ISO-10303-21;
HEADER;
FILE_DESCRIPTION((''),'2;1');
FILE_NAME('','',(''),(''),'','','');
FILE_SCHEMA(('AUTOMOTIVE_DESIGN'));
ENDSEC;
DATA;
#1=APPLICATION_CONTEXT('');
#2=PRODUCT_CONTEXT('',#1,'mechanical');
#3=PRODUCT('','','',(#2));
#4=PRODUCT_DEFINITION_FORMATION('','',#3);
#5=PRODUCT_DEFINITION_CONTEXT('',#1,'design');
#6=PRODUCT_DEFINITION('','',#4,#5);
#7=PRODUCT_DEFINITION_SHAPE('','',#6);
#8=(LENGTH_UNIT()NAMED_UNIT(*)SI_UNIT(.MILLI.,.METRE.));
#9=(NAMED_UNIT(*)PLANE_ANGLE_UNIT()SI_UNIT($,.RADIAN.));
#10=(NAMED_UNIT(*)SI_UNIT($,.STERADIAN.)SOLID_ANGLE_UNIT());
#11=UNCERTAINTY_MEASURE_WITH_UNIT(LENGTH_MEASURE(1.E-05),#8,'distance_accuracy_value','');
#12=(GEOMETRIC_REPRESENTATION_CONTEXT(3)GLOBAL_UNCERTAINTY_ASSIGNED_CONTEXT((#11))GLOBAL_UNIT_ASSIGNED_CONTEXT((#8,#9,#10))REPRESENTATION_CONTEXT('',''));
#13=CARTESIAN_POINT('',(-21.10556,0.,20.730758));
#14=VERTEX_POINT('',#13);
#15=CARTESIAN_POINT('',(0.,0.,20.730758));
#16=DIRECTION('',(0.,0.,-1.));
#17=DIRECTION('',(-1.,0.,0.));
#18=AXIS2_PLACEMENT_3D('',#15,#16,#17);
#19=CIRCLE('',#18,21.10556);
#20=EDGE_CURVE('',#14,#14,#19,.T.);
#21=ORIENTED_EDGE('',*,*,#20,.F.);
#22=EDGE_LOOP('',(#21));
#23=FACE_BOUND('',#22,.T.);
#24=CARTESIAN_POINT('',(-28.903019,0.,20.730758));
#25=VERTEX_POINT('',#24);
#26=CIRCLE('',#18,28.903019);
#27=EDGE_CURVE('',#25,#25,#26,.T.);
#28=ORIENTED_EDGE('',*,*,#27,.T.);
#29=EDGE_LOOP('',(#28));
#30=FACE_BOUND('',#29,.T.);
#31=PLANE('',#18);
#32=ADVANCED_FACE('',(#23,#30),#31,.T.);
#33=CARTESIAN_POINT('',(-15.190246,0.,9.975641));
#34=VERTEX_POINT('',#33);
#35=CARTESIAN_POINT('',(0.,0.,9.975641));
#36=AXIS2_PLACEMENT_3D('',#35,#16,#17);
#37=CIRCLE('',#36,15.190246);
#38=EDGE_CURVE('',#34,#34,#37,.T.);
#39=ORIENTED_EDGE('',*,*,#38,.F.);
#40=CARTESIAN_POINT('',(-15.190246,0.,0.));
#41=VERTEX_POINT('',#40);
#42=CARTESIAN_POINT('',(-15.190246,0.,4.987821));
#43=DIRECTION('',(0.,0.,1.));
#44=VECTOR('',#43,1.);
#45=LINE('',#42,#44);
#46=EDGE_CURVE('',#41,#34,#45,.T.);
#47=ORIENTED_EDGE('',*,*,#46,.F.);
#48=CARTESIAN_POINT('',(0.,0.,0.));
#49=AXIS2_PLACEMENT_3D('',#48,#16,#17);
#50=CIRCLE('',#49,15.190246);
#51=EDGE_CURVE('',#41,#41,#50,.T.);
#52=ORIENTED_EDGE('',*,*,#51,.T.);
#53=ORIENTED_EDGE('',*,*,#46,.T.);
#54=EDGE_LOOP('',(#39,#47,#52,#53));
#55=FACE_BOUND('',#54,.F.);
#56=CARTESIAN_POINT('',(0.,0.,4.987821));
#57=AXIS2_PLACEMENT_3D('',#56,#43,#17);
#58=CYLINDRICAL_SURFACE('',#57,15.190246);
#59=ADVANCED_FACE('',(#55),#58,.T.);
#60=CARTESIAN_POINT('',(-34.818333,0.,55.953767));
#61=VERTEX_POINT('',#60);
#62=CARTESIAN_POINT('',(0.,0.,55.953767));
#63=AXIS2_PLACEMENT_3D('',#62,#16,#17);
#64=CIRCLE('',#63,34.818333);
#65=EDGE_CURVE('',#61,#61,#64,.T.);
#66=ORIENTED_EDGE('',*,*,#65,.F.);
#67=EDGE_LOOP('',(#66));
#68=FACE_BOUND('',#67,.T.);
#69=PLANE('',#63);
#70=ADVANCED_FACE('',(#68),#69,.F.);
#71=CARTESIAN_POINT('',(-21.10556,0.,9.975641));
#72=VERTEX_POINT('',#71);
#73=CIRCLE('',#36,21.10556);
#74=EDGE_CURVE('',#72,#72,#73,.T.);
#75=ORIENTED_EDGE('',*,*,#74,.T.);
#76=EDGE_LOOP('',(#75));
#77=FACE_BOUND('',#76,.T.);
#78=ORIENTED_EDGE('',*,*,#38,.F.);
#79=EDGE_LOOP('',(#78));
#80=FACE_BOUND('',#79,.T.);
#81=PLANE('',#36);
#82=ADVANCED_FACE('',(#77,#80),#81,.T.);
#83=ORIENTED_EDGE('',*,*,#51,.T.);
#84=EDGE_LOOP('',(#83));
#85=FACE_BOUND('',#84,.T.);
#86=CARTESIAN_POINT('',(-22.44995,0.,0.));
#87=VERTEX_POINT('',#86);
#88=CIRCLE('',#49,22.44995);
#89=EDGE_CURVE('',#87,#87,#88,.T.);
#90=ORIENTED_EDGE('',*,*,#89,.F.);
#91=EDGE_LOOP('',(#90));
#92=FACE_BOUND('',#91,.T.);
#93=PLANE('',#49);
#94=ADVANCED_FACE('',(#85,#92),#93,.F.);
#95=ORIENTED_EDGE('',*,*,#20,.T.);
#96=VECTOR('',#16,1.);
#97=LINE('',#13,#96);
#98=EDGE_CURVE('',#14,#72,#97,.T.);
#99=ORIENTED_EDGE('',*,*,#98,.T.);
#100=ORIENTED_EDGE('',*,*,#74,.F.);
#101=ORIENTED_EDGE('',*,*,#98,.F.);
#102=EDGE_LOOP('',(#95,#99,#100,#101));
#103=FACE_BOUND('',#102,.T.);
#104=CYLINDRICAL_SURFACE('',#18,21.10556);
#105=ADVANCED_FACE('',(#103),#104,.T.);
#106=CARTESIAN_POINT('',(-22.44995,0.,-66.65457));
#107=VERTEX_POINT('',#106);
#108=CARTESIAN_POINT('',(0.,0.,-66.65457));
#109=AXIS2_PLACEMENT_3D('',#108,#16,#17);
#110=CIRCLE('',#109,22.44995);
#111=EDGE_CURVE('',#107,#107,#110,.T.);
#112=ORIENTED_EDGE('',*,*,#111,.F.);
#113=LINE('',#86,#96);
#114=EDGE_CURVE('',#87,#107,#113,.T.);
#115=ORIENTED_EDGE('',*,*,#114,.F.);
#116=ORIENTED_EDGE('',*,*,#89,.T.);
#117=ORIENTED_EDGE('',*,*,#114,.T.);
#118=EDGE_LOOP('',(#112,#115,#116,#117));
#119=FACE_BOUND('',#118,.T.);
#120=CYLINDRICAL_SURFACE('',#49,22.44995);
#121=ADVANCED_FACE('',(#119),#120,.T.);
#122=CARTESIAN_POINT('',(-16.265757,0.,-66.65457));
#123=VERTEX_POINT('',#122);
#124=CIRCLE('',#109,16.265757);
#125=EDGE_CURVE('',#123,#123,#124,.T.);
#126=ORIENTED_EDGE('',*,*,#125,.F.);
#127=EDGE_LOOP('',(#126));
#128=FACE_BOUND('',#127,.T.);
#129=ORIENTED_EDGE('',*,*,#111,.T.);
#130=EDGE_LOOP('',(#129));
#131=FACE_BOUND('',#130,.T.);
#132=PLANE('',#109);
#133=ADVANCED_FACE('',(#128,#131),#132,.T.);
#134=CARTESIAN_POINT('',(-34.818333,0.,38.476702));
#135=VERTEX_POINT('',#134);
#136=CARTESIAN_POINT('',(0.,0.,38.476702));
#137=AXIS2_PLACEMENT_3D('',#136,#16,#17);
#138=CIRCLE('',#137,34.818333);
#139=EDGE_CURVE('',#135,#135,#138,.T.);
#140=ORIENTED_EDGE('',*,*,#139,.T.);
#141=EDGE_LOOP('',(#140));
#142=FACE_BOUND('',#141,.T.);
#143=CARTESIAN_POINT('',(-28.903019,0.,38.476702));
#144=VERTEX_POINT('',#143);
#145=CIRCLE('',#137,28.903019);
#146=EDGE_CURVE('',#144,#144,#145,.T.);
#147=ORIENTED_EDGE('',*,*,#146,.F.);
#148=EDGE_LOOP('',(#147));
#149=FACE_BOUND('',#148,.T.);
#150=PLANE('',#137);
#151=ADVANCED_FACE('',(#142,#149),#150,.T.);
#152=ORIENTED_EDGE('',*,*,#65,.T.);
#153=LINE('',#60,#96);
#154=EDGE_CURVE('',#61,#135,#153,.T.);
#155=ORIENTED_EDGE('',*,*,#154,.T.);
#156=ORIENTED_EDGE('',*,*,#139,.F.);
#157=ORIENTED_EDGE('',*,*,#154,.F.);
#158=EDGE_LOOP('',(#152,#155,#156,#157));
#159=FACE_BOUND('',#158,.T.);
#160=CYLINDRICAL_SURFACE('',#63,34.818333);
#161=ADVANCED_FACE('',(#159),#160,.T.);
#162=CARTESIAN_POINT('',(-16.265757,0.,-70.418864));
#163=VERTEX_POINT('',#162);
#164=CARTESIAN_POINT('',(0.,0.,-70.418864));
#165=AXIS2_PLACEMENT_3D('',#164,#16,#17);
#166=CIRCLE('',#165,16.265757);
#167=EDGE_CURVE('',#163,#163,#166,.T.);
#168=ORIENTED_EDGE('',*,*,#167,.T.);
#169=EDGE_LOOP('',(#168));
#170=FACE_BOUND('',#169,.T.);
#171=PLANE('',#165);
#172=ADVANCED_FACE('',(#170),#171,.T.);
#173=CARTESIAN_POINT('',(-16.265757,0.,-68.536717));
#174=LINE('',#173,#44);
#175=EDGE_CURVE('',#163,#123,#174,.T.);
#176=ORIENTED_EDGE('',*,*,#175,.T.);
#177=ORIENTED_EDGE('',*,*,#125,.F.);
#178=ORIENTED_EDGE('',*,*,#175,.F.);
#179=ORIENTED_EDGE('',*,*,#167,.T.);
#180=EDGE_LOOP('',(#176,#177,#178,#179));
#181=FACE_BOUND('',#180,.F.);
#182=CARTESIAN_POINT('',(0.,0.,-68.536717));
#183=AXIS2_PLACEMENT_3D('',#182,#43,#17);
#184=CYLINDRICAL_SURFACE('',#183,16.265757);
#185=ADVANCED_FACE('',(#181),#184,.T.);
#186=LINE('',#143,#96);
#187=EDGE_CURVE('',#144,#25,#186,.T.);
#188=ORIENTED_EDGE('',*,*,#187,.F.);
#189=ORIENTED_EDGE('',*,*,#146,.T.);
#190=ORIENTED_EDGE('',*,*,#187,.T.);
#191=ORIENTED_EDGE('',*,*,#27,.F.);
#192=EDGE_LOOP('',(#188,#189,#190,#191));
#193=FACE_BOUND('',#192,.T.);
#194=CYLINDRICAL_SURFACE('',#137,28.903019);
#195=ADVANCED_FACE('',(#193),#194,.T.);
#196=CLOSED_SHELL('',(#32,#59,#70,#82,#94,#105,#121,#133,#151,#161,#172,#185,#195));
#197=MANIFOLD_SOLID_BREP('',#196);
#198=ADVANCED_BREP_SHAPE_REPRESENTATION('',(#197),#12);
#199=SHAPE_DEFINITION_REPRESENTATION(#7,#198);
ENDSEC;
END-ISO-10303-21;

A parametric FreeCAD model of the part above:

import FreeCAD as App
import Part
import Sketcher

V = App.Vector
Q = App.Units.Quantity


def add_polygon(sketch, points):
    """Adds a closed chain of lines whose ends are joined by coincident constraints."""
    first, n = sketch.GeometryCount, len(points)
    for a, b in zip(points, points[1:] + points[:1]):
        sketch.addGeometry(Part.LineSegment(App.Vector(*a, 0), App.Vector(*b, 0)), False)
    for i in range(n):
        sketch.addConstraint(Sketcher.Constraint("Coincident", first + i, 2, first + (i + 1) % n, 1))

doc = App.newDocument("Part")
body = doc.addObject("PartDesign::Body", "Body")

sketch1 = body.newObject("Sketcher::SketchObject", "Sketch")
sketch1.AttachmentSupport = (doc.getObject("XZ_Plane"), [""])
sketch1.MapMode = "FlatFace"
add_polygon(sketch1, [(0, 56), (-34.8, 56), (-34.8, 38.5), (-28.9, 38.5), (-28.9, 20.7), (-21.1, 20.7), (-21.1, 10), (-15.2, 10), (-15.2, 0), (-22.4, 0), (-22.4, -66.7), (-16.3, -66.7), (-16.3, -70.4), (0, -70.4), (0, 0), (0, 10)])
sketch1.addConstraint(Sketcher.Constraint("Horizontal", 0))
sketch1.addConstraint(Sketcher.Constraint("Vertical", 1))
sketch1.addConstraint(Sketcher.Constraint("Horizontal", 2))
sketch1.addConstraint(Sketcher.Constraint("Vertical", 3))
sketch1.addConstraint(Sketcher.Constraint("Horizontal", 4))
sketch1.addConstraint(Sketcher.Constraint("Vertical", 5))
sketch1.addConstraint(Sketcher.Constraint("Horizontal", 6))
sketch1.addConstraint(Sketcher.Constraint("Vertical", 7))
sketch1.addConstraint(Sketcher.Constraint("Horizontal", 8))
sketch1.addConstraint(Sketcher.Constraint("Vertical", 9))
sketch1.addConstraint(Sketcher.Constraint("Horizontal", 10))
sketch1.addConstraint(Sketcher.Constraint("Vertical", 11))
sketch1.addConstraint(Sketcher.Constraint("Horizontal", 12))
sketch1.addConstraint(Sketcher.Constraint("Vertical", 13))
sketch1.addConstraint(Sketcher.Constraint("Vertical", 14))
sketch1.addConstraint(Sketcher.Constraint("Vertical", 15))
sketch1.addConstraint(Sketcher.Constraint("Coincident", 13, 2, -1, 1))
sketch1.addConstraint(Sketcher.Constraint("PointOnObject", 7, 2, -1))
sketch1.addConstraint(Sketcher.Constraint("Horizontal", 6, 2, 14, 2))
sketch1.addConstraint(Sketcher.Constraint("Equal", 2, 6))
sketch1.addConstraint(Sketcher.Constraint("DistanceX", 4, 1, 4, 2, Q("7.797459 mm")))
sketch1.addConstraint(Sketcher.Constraint("DistanceY", 7, 2, 7, 1, Q("9.975641 mm")))
sketch1.addConstraint(Sketcher.Constraint("DistanceY", 9, 2, 9, 1, Q("66.65457 mm")))
sketch1.addConstraint(Sketcher.Constraint("DistanceY", -1, 1, 1, 2, Q("38.476702 mm")))
sketch1.addConstraint(Sketcher.Constraint("DistanceX", 0, 2, 0, 1, Q("34.818333 mm")))
sketch1.addConstraint(Sketcher.Constraint("DistanceX", 2, 1, 2, 2, Q("5.915314 mm")))
sketch1.addConstraint(Sketcher.Constraint("DistanceX", 8, 2, 8, 1, Q("7.259704 mm")))
sketch1.addConstraint(Sketcher.Constraint("DistanceX", 10, 1, 10, 2, Q("6.184192 mm")))
sketch1.addConstraint(Sketcher.Constraint("DistanceY", 1, 2, 1, 1, Q("17.477065 mm")))
sketch1.addConstraint(Sketcher.Constraint("DistanceY", 3, 2, 3, 1, Q("17.745944 mm")))
sketch1.addConstraint(Sketcher.Constraint("DistanceY", 11, 2, 11, 1, Q("3.764294 mm")))
revolution = body.newObject("PartDesign::Revolution", "Revolution")
revolution.Profile = sketch1
revolution.ReferenceAxis = (sketch1, ["V_Axis"])
revolution.Angle = 360

doc.recompute()
